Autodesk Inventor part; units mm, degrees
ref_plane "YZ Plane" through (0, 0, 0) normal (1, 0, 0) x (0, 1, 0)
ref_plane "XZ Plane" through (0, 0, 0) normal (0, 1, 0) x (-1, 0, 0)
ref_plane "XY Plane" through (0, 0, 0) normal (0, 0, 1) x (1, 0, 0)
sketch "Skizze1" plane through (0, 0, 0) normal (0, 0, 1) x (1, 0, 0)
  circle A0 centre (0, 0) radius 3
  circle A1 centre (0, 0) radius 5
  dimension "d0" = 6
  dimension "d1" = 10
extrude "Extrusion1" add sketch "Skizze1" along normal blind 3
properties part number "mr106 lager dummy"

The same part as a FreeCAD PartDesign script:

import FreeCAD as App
import Part
import Sketcher

V = App.Vector

doc = App.newDocument("Part")
body = doc.addObject("PartDesign::Body", "Body")

sketch1 = doc.addObject("Sketcher::SketchObject", "Sketch")
body.addObject(sketch1)
sketch1.AttachmentSupport = (doc.XY_Plane, [""])
sketch1.MapMode = "FlatFace"
sketch1.addGeometry(Part.Circle(V(0, 0, 0), V(0, 0, 1), 5), False)
sketch1.addGeometry(Part.Circle(V(0, 0, 0), V(0, 0, 1), 3), False)
sketch1.addConstraint(Sketcher.Constraint("Coincident", 0, 3, -1, 1))
sketch1.addConstraint(Sketcher.Constraint("Coincident", 1, 3, -1, 1))
sketch1.addConstraint(Sketcher.Constraint("Diameter", 0, 10.0))
sketch1.addConstraint(Sketcher.Constraint("Diameter", 1, 6.0))
pad1 = doc.addObject("PartDesign::Pad", "Pad")
body.addObject(pad1)
pad1.Profile = sketch1
pad1.Length = 3

doc.recompute()
